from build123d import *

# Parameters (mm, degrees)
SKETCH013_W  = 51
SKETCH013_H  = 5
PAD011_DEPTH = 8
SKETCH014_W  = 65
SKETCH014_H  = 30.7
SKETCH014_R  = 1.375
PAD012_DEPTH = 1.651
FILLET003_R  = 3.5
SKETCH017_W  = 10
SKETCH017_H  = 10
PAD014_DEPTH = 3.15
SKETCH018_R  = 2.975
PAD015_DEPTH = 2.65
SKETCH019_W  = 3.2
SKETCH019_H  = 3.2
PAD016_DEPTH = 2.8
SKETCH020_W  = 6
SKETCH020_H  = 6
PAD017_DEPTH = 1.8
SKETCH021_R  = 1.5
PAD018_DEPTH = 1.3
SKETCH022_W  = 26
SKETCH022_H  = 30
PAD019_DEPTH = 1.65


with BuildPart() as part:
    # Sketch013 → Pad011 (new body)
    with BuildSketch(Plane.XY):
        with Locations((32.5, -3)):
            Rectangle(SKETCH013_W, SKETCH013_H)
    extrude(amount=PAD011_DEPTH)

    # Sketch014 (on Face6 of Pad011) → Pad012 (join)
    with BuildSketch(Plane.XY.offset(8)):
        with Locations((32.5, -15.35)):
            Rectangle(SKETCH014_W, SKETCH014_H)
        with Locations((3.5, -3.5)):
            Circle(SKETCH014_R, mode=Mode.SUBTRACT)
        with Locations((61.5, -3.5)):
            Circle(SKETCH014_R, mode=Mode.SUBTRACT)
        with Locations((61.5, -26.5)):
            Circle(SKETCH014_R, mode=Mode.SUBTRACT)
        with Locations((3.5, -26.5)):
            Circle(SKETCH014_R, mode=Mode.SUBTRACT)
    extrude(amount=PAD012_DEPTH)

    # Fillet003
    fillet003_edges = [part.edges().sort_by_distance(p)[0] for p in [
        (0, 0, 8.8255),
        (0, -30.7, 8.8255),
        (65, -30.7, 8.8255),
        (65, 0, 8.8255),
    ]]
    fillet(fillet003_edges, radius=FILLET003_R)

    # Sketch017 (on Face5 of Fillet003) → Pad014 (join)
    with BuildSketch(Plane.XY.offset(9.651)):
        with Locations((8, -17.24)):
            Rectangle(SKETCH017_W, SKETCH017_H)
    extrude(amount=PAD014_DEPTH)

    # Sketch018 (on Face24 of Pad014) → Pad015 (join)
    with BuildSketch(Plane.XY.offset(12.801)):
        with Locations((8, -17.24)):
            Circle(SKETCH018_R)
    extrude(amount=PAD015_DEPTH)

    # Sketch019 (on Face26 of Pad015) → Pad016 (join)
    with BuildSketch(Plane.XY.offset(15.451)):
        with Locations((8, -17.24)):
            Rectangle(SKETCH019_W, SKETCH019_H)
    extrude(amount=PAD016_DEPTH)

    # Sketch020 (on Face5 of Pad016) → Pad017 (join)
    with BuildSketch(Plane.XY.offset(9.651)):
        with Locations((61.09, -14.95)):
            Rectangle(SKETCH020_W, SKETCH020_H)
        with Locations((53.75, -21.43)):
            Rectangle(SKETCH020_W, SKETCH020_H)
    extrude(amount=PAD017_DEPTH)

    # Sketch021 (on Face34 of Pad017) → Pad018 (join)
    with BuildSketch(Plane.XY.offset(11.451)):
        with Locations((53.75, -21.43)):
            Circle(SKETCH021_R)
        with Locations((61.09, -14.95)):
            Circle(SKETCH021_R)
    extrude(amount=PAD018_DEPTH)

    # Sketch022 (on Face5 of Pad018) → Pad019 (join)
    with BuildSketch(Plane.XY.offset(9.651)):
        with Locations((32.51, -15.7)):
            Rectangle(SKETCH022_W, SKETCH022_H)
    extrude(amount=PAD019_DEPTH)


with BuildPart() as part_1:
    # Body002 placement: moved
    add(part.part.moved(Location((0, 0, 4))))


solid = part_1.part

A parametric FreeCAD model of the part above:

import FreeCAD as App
import Part
import Sketcher

V = App.Vector


def edges_at(feature, points):
    """Names of the edges that pass closest to the given points."""
    edges = feature.Shape.Edges
    near = lambda p: min(range(len(edges)), key=lambda i: edges[i].distToShape(Part.Vertex(*p))[0])
    return sorted({f"Edge{near(p) + 1}" for p in points})

doc = App.newDocument("Part")
body = doc.addObject("PartDesign::Body", "Body")

sketch1 = body.newObject("Sketcher::SketchObject", "Sketch")
sketch1.AttachmentSupport = (doc.getObject("XY_Plane"), [""])
sketch1.MapMode = "FlatFace"
sketch1.addGeometry(Part.LineSegment(V(7, 0, 0), V(7, -6, 0)), False)
sketch1.addGeometry(Part.LineSegment(V(7, -6, 0), V(58, -6, 0)), False)
sketch1.addGeometry(Part.LineSegment(V(58, -6, 0), V(58, 0, 0)), False)
sketch1.addGeometry(Part.LineSegment(V(58, 0, 0), V(7, 0, 0)), False)
sketch1.addConstraint(Sketcher.Constraint("Coincident", 0, 2, 1, 1))
sketch1.addConstraint(Sketcher.Constraint("Coincident", 1, 2, 2, 1))
sketch1.addConstraint(Sketcher.Constraint("Coincident", 2, 2, 3, 1))
sketch1.addConstraint(Sketcher.Constraint("Coincident", 3, 2, 0, 1))
sketch1.addConstraint(Sketcher.Constraint("Vertical", 0))
sketch1.addConstraint(Sketcher.Constraint("Horizontal", 1))
sketch1.addConstraint(Sketcher.Constraint("Vertical", 2))
sketch1.addConstraint(Sketcher.Constraint("Horizontal", 3))
sketch1.addConstraint(Sketcher.Constraint("DistanceX", 1, 1, 1, 2, 51.0))
sketch1.addConstraint(Sketcher.Constraint("DistanceY", 0, 2, 0, 1, 5.0))
sketch1.addConstraint(Sketcher.Constraint("DistanceX", -1, 1, 0, 2, 7.0))
sketch1.addConstraint(Sketcher.Constraint("DistanceY", 0, 2, -1, 1, 5.5))
pad1 = body.newObject("PartDesign::Pad", "Pad")
pad1.Profile = sketch1
pad1.Length = 8

sketch2 = body.newObject("Sketcher::SketchObject", "Sketch001")
sketch2.AttachmentSupport = (doc.getObject("XY_Plane"), [""])
sketch2.MapMode = "FlatFace"
sketch2.AttachmentOffset = App.Placement(V(0, 0, 8), App.Rotation())
sketch2.addGeometry(Part.LineSegment(V(0, 0, 0), V(0, -30.7, 0)), False)
sketch2.addGeometry(Part.LineSegment(V(0, -30.7, 0), V(65, -30.7, 0)), False)
sketch2.addGeometry(Part.LineSegment(V(65, -30.7, 0), V(65, 0, 0)), False)
sketch2.addGeometry(Part.LineSegment(V(65, 0, 0), V(0, 0, 0)), False)
sketch2.addGeometry(Part.Circle(V(3.5, -26.5, 0), V(0, 0, 1), 1.4), False)
sketch2.addGeometry(Part.Circle(V(61.5, -26.5, 0), V(0, 0, 1), 1.4), False)
sketch2.addGeometry(Part.Circle(V(3.5, -3.5, 0), V(0, 0, 1), 1.4), False)
sketch2.addGeometry(Part.Circle(V(61.5, -3.5, 0), V(0, 0, 1), 1.4), False)
sketch2.addConstraint(Sketcher.Constraint("Coincident", 0, 2, 1, 1))
sketch2.addConstraint(Sketcher.Constraint("Coincident", 1, 2, 2, 1))
sketch2.addConstraint(Sketcher.Constraint("Coincident", 2, 2, 3, 1))
sketch2.addConstraint(Sketcher.Constraint("Coincident", 3, 2, 0, 1))
sketch2.addConstraint(Sketcher.Constraint("Vertical", 0))
sketch2.addConstraint(Sketcher.Constraint("Horizontal", 1))
sketch2.addConstraint(Sketcher.Constraint("Vertical", 2))
sketch2.addConstraint(Sketcher.Constraint("Horizontal", 3))
sketch2.addConstraint(Sketcher.Constraint("Coincident", 3, 2, -1, 1))
sketch2.addConstraint(Sketcher.Constraint("Equal", 4, 5))
sketch2.addConstraint(Sketcher.Constraint("Equal", 5, 6))
sketch2.addConstraint(Sketcher.Constraint("Equal", 6, 7))
sketch2.addConstraint(Sketcher.Constraint("Horizontal", 4, 3, 5, 3))
sketch2.addConstraint(Sketcher.Constraint("Horizontal", 6, 3, 7, 3))
sketch2.addConstraint(Sketcher.Constraint("Vertical", 4, 3, 6, 3))
sketch2.addConstraint(Sketcher.Constraint("Vertical", 5, 3, 7, 3))
sketch2.addConstraint(Sketcher.Constraint("Diameter", 4, 2.75))
sketch2.addConstraint(Sketcher.Constraint("DistanceX", 1, 1, 1, 2, 65.0))
sketch2.addConstraint(Sketcher.Constraint("DistanceY", 0, 2, 0, 1, 30.7))
sketch2.addConstraint(Sketcher.Constraint("DistanceX", 4, 3, 5, 3, 58.0))
sketch2.addConstraint(Sketcher.Constraint("DistanceY", 4, 3, 6, 3, 23.0))
sketch2.addConstraint(Sketcher.Constraint("DistanceX", -1, 1, 4, 3, 3.5))
sketch2.addConstraint(Sketcher.Constraint("DistanceY", 4, 3, -1, 1, 26.5))
pad2 = body.newObject("PartDesign::Pad", "Pad001")
pad2.Profile = sketch2
pad2.Length = 1.651
doc.recompute()

fillet = body.newObject("PartDesign::Fillet", "Fillet")
fillet.Base = (pad2, edges_at(pad2, [
    (0, 0, 8.825),
    (0, -30.7, 8.825),
    (65, -30.7, 8.825),
    (65, 0, 8.825),
]))
fillet.Radius = 3.5

sketch3 = body.newObject("Sketcher::SketchObject", "Sketch002")
sketch3.AttachmentSupport = (doc.getObject("XY_Plane"), [""])
sketch3.MapMode = "FlatFace"
sketch3.AttachmentOffset = App.Placement(V(0, 0, 9.651), App.Rotation())
sketch3.addGeometry(Part.LineSegment(V(3, -12, 0), V(3, -22, 0)), False)
sketch3.addGeometry(Part.LineSegment(V(3, -22, 0), V(13, -22, 0)), False)
sketch3.addGeometry(Part.LineSegment(V(13, -22, 0), V(13, -12, 0)), False)
sketch3.addGeometry(Part.LineSegment(V(13, -12, 0), V(3, -12, 0)), False)
sketch3.addConstraint(Sketcher.Constraint("Coincident", 0, 2, 1, 1))
sketch3.addConstraint(Sketcher.Constraint("Coincident", 1, 2, 2, 1))
sketch3.addConstraint(Sketcher.Constraint("Coincident", 2, 2, 3, 1))
sketch3.addConstraint(Sketcher.Constraint("Coincident", 3, 2, 0, 1))
sketch3.addConstraint(Sketcher.Constraint("Vertical", 0))
sketch3.addConstraint(Sketcher.Constraint("Horizontal", 1))
sketch3.addConstraint(Sketcher.Constraint("Vertical", 2))
sketch3.addConstraint(Sketcher.Constraint("Horizontal", 3))
sketch3.addConstraint(Sketcher.Constraint("Equal", 3, 0))
sketch3.addConstraint(Sketcher.Constraint("DistanceX", 1, 1, 1, 2, 10.0))
sketch3.addConstraint(Sketcher.Constraint("DistanceX", -1, 1, 0, 2, 3.0))
sketch3.addConstraint(Sketcher.Constraint("DistanceY", 0, 2, -1, 1, 22.24))
pad3 = body.newObject("PartDesign::Pad", "Pad002")
pad3.Profile = sketch3
pad3.Length = 3.15

sketch4 = body.newObject("Sketcher::SketchObject", "Sketch003")
sketch4.AttachmentSupport = (doc.getObject("XY_Plane"), [""])
sketch4.MapMode = "FlatFace"
sketch4.AttachmentOffset = App.Placement(V(0, 0, 12.801), App.Rotation())
sketch4.addGeometry(Part.Circle(V(8, -17.2, 0), V(0, 0, 1), 3), False)
sketch4.addConstraint(Sketcher.Constraint("Diameter", 0, 5.95))
sketch4.addConstraint(Sketcher.Constraint("DistanceX", -1, 1, 0, 3, 8.0))
sketch4.addConstraint(Sketcher.Constraint("DistanceY", 0, 3, -1, 1, 17.24))
pad4 = body.newObject("PartDesign::Pad", "Pad003")
pad4.Profile = sketch4
pad4.Length = 2.65

sketch5 = body.newObject("Sketcher::SketchObject", "Sketch004")
sketch5.AttachmentSupport = (doc.getObject("XY_Plane"), [""])
sketch5.MapMode = "FlatFace"
sketch5.AttachmentOffset = App.Placement(V(0, 0, 15.451), App.Rotation())
sketch5.addGeometry(Part.LineSegment(V(6.4, -15.6, 0), V(6.4, -18.8, 0)), False)
sketch5.addGeometry(Part.LineSegment(V(6.4, -18.8, 0), V(9.6, -18.8, 0)), False)
sketch5.addGeometry(Part.LineSegment(V(9.6, -18.8, 0), V(9.6, -15.6, 0)), False)
sketch5.addGeometry(Part.LineSegment(V(9.6, -15.6, 0), V(6.4, -15.6, 0)), False)
sketch5.addConstraint(Sketcher.Constraint("Coincident", 0, 2, 1, 1))
sketch5.addConstraint(Sketcher.Constraint("Coincident", 1, 2, 2, 1))
sketch5.addConstraint(Sketcher.Constraint("Coincident", 2, 2, 3, 1))
sketch5.addConstraint(Sketcher.Constraint("Coincident", 3, 2, 0, 1))
sketch5.addConstraint(Sketcher.Constraint("Vertical", 0))
sketch5.addConstraint(Sketcher.Constraint("Horizontal", 1))
sketch5.addConstraint(Sketcher.Constraint("Vertical", 2))
sketch5.addConstraint(Sketcher.Constraint("Horizontal", 3))
sketch5.addConstraint(Sketcher.Constraint("Equal", 3, 0))
sketch5.addConstraint(Sketcher.Constraint("DistanceX", 1, 1, 1, 2, 3.2))
sketch5.addConstraint(Sketcher.Constraint("DistanceX", -1, 1, 0, 2, 6.4))
sketch5.addConstraint(Sketcher.Constraint("DistanceY", 0, 2, -1, 1, 18.84))
pad5 = body.newObject("PartDesign::Pad", "Pad004")
pad5.Profile = sketch5
pad5.Length = 2.8

sketch6 = body.newObject("Sketcher::SketchObject", "Sketch005")
sketch6.AttachmentSupport = (doc.getObject("XY_Plane"), [""])
sketch6.MapMode = "FlatFace"
sketch6.AttachmentOffset = App.Placement(V(0, 0, 9.651), App.Rotation())
sketch6.addGeometry(Part.LineSegment(V(58, -12, 0), V(58, -18, 0)), False)
sketch6.addGeometry(Part.LineSegment(V(58, -18, 0), V(64, -18, 0)), False)
sketch6.addGeometry(Part.LineSegment(V(64, -18, 0), V(64, -12, 0)), False)
sketch6.addGeometry(Part.LineSegment(V(64, -12, 0), V(58, -12, 0)), False)
sketch6.addGeometry(Part.LineSegment(V(51, -18, 0), V(51, -24, 0)), False)
sketch6.addGeometry(Part.LineSegment(V(51, -24, 0), V(57, -24, 0)), False)
sketch6.addGeometry(Part.LineSegment(V(57, -24, 0), V(57, -18, 0)), False)
sketch6.addGeometry(Part.LineSegment(V(57, -18, 0), V(51, -18, 0)), False)
sketch6.addConstraint(Sketcher.Constraint("Coincident", 0, 2, 1, 1))
sketch6.addConstraint(Sketcher.Constraint("Coincident", 1, 2, 2, 1))
sketch6.addConstraint(Sketcher.Constraint("Coincident", 2, 2, 3, 1))
sketch6.addConstraint(Sketcher.Constraint("Coincident", 3, 2, 0, 1))
sketch6.addConstraint(Sketcher.Constraint("Coincident", 4, 2, 5, 1))
sketch6.addConstraint(Sketcher.Constraint("Coincident", 5, 2, 6, 1))
sketch6.addConstraint(Sketcher.Constraint("Coincident", 6, 2, 7, 1))
sketch6.addConstraint(Sketcher.Constraint("Coincident", 7, 2, 4, 1))
sketch6.addConstraint(Sketcher.Constraint("Vertical", 0))
sketch6.addConstraint(Sketcher.Constraint("Horizontal", 1))
sketch6.addConstraint(Sketcher.Constraint("Vertical", 2))
sketch6.addConstraint(Sketcher.Constraint("Horizontal", 3))
sketch6.addConstraint(Sketcher.Constraint("Vertical", 4))
sketch6.addConstraint(Sketcher.Constraint("Horizontal", 5))
sketch6.addConstraint(Sketcher.Constraint("Vertical", 6))
sketch6.addConstraint(Sketcher.Constraint("Horizontal", 7))
sketch6.addConstraint(Sketcher.Constraint("Equal", 3, 5))
sketch6.addConstraint(Sketcher.Constraint("Equal", 7, 0))
sketch6.addConstraint(Sketcher.Constraint("Equal", 2, 4))
sketch6.addConstraint(Sketcher.Constraint("DistanceX", 1, 1, 1, 2, 6.0))
sketch6.addConstraint(Sketcher.Constraint("DistanceX", -1, 1, 0, 2, 58.09))
sketch6.addConstraint(Sketcher.Constraint("DistanceY", 0, 2, -1, 1, 17.95))
sketch6.addConstraint(Sketcher.Constraint("DistanceX", -1, 1, 4, 2, 50.75))
sketch6.addConstraint(Sketcher.Constraint("DistanceY", 4, 2, -1, 1, 24.43))
pad6 = body.newObject("PartDesign::Pad", "Pad005")
pad6.Profile = sketch6
pad6.Length = 1.8

sketch7 = body.newObject("Sketcher::SketchObject", "Sketch006")
sketch7.AttachmentSupport = (doc.getObject("XY_Plane"), [""])
sketch7.MapMode = "FlatFace"
sketch7.AttachmentOffset = App.Placement(V(0, 0, 11.451), App.Rotation())
sketch7.addGeometry(Part.Circle(V(53.8, -21.4, 0), V(0, 0, 1), 1.5), False)
sketch7.addGeometry(Part.Circle(V(61.1, -14.9, 0), V(0, 0, 1), 1.5), False)
sketch7.addConstraint(Sketcher.Constraint("Equal", 0, 1))
sketch7.addConstraint(Sketcher.Constraint("Diameter", 0, 3.0))
sketch7.addConstraint(Sketcher.Constraint("DistanceX", -1, 1, 0, 3, 53.75))
sketch7.addConstraint(Sketcher.Constraint("DistanceY", 0, 3, -1, 1, 21.43))
sketch7.addConstraint(Sketcher.Constraint("DistanceX", -1, 1, 1, 3, 61.09))
sketch7.addConstraint(Sketcher.Constraint("DistanceY", 1, 3, -1, 1, 14.95))
pad7 = body.newObject("PartDesign::Pad", "Pad006")
pad7.Profile = sketch7
pad7.Length = 1.3

sketch8 = body.newObject("Sketcher::SketchObject", "Sketch007")
sketch8.AttachmentSupport = (doc.getObject("XY_Plane"), [""])
sketch8.MapMode = "FlatFace"
sketch8.AttachmentOffset = App.Placement(V(0, 0, 9.651), App.Rotation())
sketch8.addGeometry(Part.LineSegment(V(20, -1, 0), V(20, -31, 0)), False)
sketch8.addGeometry(Part.LineSegment(V(20, -31, 0), V(46, -31, 0)), False)
sketch8.addGeometry(Part.LineSegment(V(46, -31, 0), V(46, -1, 0)), False)
sketch8.addGeometry(Part.LineSegment(V(46, -1, 0), V(20, -1, 0)), False)
sketch8.addConstraint(Sketcher.Constraint("Coincident", 0, 2, 1, 1))
sketch8.addConstraint(Sketcher.Constraint("Coincident", 1, 2, 2, 1))
sketch8.addConstraint(Sketcher.Constraint("Coincident", 2, 2, 3, 1))
sketch8.addConstraint(Sketcher.Constraint("Coincident", 3, 2, 0, 1))
sketch8.addConstraint(Sketcher.Constraint("Vertical", 0))
sketch8.addConstraint(Sketcher.Constraint("Horizontal", 1))
sketch8.addConstraint(Sketcher.Constraint("Vertical", 2))
sketch8.addConstraint(Sketcher.Constraint("Horizontal", 3))
sketch8.addConstraint(Sketcher.Constraint("DistanceX", 1, 1, 1, 2, 26.0))
sketch8.addConstraint(Sketcher.Constraint("DistanceY", 0, 2, 0, 1, 30.0))
sketch8.addConstraint(Sketcher.Constraint("DistanceY", 0, 2, -1, 1, 30.7))
sketch8.addConstraint(Sketcher.Constraint("DistanceX", -1, 1, 0, 2, 19.51))
pad8 = body.newObject("PartDesign::Pad", "Pad007")
pad8.Profile = sketch8
pad8.Length = 1.65
body2 = doc.addObject("PartDesign::Body", "Body001")
doc.recompute()

body.Placement = App.Placement(V(0, 0, 4), App.Rotation(V(0, 0, 1), 0))
boolean = body2.newObject("PartDesign::Boolean", "Boolean")
boolean.Type = "Fuse"
boolean.addObjects([body])

doc.recompute()
